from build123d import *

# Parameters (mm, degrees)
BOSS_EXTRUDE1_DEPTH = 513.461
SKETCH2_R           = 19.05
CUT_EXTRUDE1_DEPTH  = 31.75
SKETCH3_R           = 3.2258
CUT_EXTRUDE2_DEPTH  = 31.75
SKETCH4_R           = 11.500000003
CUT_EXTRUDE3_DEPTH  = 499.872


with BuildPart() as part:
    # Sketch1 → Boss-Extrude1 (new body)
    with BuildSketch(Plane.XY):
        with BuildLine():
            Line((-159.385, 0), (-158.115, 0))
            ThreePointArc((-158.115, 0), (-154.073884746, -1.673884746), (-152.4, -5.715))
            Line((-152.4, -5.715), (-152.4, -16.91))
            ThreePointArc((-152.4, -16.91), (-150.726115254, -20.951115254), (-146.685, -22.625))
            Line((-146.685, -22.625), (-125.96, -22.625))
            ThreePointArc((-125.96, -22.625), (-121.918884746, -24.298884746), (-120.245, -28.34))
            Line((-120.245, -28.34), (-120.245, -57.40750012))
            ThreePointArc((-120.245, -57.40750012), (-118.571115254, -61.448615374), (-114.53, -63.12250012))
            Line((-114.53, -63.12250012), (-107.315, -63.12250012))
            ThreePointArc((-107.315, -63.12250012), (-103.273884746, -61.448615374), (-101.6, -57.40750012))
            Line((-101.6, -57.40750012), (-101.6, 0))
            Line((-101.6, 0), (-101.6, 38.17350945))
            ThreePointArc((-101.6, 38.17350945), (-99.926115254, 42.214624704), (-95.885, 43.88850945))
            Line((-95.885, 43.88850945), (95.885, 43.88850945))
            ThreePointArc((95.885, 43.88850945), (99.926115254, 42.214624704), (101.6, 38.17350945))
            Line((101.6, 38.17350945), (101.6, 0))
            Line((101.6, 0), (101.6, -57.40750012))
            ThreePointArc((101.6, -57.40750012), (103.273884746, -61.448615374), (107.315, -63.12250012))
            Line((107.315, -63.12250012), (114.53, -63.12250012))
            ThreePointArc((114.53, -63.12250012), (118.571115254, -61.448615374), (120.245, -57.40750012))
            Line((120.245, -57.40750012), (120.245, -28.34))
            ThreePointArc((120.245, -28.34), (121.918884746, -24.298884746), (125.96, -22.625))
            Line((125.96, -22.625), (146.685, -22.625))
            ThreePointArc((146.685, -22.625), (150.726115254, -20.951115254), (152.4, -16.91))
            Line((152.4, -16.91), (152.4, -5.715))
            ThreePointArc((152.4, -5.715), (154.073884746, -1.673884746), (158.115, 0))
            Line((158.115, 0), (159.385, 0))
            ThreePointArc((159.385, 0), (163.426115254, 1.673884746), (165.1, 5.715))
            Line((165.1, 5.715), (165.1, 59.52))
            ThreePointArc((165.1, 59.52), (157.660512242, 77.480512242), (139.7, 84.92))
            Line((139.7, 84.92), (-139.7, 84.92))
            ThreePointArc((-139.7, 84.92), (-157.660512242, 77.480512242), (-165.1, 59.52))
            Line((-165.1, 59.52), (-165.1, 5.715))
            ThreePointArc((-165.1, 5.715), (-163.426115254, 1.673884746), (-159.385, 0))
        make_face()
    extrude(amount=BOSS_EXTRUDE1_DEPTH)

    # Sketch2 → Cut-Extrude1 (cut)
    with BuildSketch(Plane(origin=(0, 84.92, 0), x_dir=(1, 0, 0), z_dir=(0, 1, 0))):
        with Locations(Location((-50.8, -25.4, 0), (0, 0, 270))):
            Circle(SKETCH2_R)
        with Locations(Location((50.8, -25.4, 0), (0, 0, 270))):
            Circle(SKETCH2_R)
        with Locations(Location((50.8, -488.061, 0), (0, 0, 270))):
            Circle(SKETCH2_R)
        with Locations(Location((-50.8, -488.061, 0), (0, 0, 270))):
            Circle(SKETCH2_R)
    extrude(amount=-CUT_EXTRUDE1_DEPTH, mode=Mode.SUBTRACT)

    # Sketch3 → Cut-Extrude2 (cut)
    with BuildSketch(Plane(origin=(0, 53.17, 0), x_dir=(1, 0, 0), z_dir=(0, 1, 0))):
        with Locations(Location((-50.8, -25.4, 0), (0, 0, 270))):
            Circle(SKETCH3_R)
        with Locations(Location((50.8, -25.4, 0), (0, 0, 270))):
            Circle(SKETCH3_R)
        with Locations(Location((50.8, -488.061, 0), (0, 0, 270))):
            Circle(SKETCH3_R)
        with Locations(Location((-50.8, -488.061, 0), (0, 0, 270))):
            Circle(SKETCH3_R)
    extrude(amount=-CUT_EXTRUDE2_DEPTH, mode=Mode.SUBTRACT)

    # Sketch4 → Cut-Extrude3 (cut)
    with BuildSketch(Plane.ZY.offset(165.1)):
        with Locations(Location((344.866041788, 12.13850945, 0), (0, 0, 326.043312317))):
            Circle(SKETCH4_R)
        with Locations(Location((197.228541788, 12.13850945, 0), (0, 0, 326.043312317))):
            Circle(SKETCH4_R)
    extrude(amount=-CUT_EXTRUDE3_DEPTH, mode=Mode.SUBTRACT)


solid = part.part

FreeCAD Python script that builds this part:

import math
import FreeCAD as App
import Part
import Sketcher

V = App.Vector
Q = App.Units.Quantity

doc = App.newDocument("Part")
body = doc.addObject("PartDesign::Body", "Body")

# Sketch on XY plane
sketch1 = body.newObject("Sketcher::SketchObject", "Sketch")
sketch1.AttachmentSupport = (doc.getObject("XY_Plane"), [""])
sketch1.MapMode = "FlatFace"
sketch1.addGeometry([
    Part.LineSegment(V(-159.4, 0, 0), V(-158.1, 0, 0)),  # 0
    Part.ArcOfCircle(Part.Circle(V(-158.1, -5.7, 0), V(0, 0, 1), 5.7), math.radians(0), math.radians(90)),  # 1
    Part.LineSegment(V(-152.4, -5.7, 0), V(-152.4, -16.9, 0)),  # 2
    Part.ArcOfCircle(Part.Circle(V(-146.7, -16.9, 0), V(0, 0, 1), 5.7), math.radians(-180), math.radians(-90)),  # 3
    Part.LineSegment(V(-146.7, -22.6, 0), V(-126, -22.6, 0)),  # 4
    Part.ArcOfCircle(Part.Circle(V(-126, -28.3, 0), V(0, 0, 1), 5.7), math.radians(0), math.radians(90)),  # 5
    Part.LineSegment(V(-120.2, -28.3, 0), V(-120.2, -57.4, 0)),  # 6
    Part.ArcOfCircle(Part.Circle(V(-114.5, -57.4, 0), V(0, 0, 1), 5.7), math.radians(-180), math.radians(-90)),  # 7
    Part.LineSegment(V(-114.5, -63.1, 0), V(-107.3, -63.1, 0)),  # 8
    Part.ArcOfCircle(Part.Circle(V(-107.3, -57.4, 0), V(0, 0, 1), 5.7), math.radians(-90), math.radians(0)),  # 9
    Part.LineSegment(V(-101.6, -57.4, 0), V(-101.6, 38.2, 0)),  # 10
    Part.ArcOfCircle(Part.Circle(V(-95.9, 38.2, 0), V(0, 0, 1), 5.7), math.radians(90), math.radians(180)),  # 11
    Part.LineSegment(V(-95.9, 43.9, 0), V(95.9, 43.9, 0)),  # 12
    Part.ArcOfCircle(Part.Circle(V(95.9, 38.2, 0), V(0, 0, 1), 5.7), math.radians(0), math.radians(90)),  # 13
    Part.LineSegment(V(101.6, 38.2, 0), V(101.6, -57.4, 0)),  # 14
    Part.ArcOfCircle(Part.Circle(V(107.3, -57.4, 0), V(0, 0, 1), 5.7), math.radians(-180), math.radians(-90)),  # 15
    Part.LineSegment(V(107.3, -63.1, 0), V(114.5, -63.1, 0)),  # 16
    Part.ArcOfCircle(Part.Circle(V(114.5, -57.4, 0), V(0, 0, 1), 5.7), math.radians(-90), math.radians(0)),  # 17
    Part.LineSegment(V(120.2, -57.4, 0), V(120.2, -28.3, 0)),  # 18
    Part.ArcOfCircle(Part.Circle(V(126, -28.3, 0), V(0, 0, 1), 5.7), math.radians(90), math.radians(180)),  # 19
    Part.LineSegment(V(126, -22.6, 0), V(146.7, -22.6, 0)),  # 20
    Part.ArcOfCircle(Part.Circle(V(146.7, -16.9, 0), V(0, 0, 1), 5.7), math.radians(-90), math.radians(0)),  # 21
    Part.LineSegment(V(152.4, -16.9, 0), V(152.4, -5.7, 0)),  # 22
    Part.ArcOfCircle(Part.Circle(V(158.1, -5.7, 0), V(0, 0, 1), 5.7), math.radians(90), math.radians(180)),  # 23
    Part.LineSegment(V(158.1, 0, 0), V(159.4, 0, 0)),  # 24
    Part.ArcOfCircle(Part.Circle(V(159.4, 5.7, 0), V(0, 0, 1), 5.7), math.radians(-90), math.radians(0)),  # 25
    Part.LineSegment(V(165.1, 5.7, 0), V(165.1, 59.5, 0)),  # 26
    Part.ArcOfCircle(Part.Circle(V(139.7, 59.5, 0), V(0, 0, 1), 25.4), math.radians(0), math.radians(90)),  # 27
    Part.LineSegment(V(139.7, 84.9, 0), V(-139.7, 84.9, 0)),  # 28
    Part.ArcOfCircle(Part.Circle(V(-139.7, 59.5, 0), V(0, 0, 1), 25.4), math.radians(90), math.radians(180)),  # 29
    Part.LineSegment(V(-165.1, 59.5, 0), V(-165.1, 5.7, 0)),  # 30
    Part.ArcOfCircle(Part.Circle(V(-159.4, 5.7, 0), V(0, 0, 1), 5.7), math.radians(-180), math.radians(-90)),  # 31
], False)
sketch1.addConstraint([
    Sketcher.Constraint("Tangent", 0, 2, 1, 2),
    Sketcher.Constraint("Tangent", 1, 1, 2, 1),
    Sketcher.Constraint("Tangent", 2, 2, 3, 1),
    Sketcher.Constraint("Tangent", 3, 2, 4, 1),
    Sketcher.Constraint("Tangent", 4, 2, 5, 2),
    Sketcher.Constraint("Tangent", 5, 1, 6, 1),
    Sketcher.Constraint("Tangent", 6, 2, 7, 1),
    Sketcher.Constraint("Tangent", 7, 2, 8, 1),
    Sketcher.Constraint("Tangent", 8, 2, 9, 1),
    Sketcher.Constraint("Tangent", 9, 2, 10, 1),
    Sketcher.Constraint("Tangent", 10, 2, 11, 2),
    Sketcher.Constraint("Tangent", 11, 1, 12, 1),
    Sketcher.Constraint("Tangent", 12, 2, 13, 2),
    Sketcher.Constraint("Tangent", 13, 1, 14, 1),
    Sketcher.Constraint("Tangent", 14, 2, 15, 1),
    Sketcher.Constraint("Tangent", 15, 2, 16, 1),
    Sketcher.Constraint("Tangent", 16, 2, 17, 1),
    Sketcher.Constraint("Tangent", 17, 2, 18, 1),
    Sketcher.Constraint("Tangent", 18, 2, 19, 2),
    Sketcher.Constraint("Tangent", 19, 1, 20, 1),
    Sketcher.Constraint("Tangent", 20, 2, 21, 1),
    Sketcher.Constraint("Tangent", 21, 2, 22, 1),
    Sketcher.Constraint("Tangent", 22, 2, 23, 2),
    Sketcher.Constraint("Tangent", 23, 1, 24, 1),
    Sketcher.Constraint("Tangent", 24, 2, 25, 1),
    Sketcher.Constraint("Tangent", 25, 2, 26, 1),
    Sketcher.Constraint("Tangent", 26, 2, 27, 1),
    Sketcher.Constraint("Tangent", 27, 2, 28, 1),
    Sketcher.Constraint("Tangent", 28, 2, 29, 1),
    Sketcher.Constraint("Tangent", 29, 2, 30, 1),
    Sketcher.Constraint("Tangent", 30, 2, 31, 1),
    Sketcher.Constraint("Tangent", 31, 2, 0, 1),
    Sketcher.Constraint("Horizontal", 0),
    Sketcher.Constraint("Vertical", 2),
    Sketcher.Constraint("Horizontal", 4),
    Sketcher.Constraint("Vertical", 6),
    Sketcher.Constraint("Horizontal", 8),
    Sketcher.Constraint("Vertical", 10),
    Sketcher.Constraint("Horizontal", 12),
    Sketcher.Constraint("Vertical", 14),
    Sketcher.Constraint("Horizontal", 16),
    Sketcher.Constraint("Vertical", 18),
    Sketcher.Constraint("Horizontal", 20),
    Sketcher.Constraint("Vertical", 22),
    Sketcher.Constraint("Horizontal", 24),
    Sketcher.Constraint("Vertical", 26),
    Sketcher.Constraint("Horizontal", 28),
    Sketcher.Constraint("Vertical", 30),
    Sketcher.Constraint("Equal", 1, 3),
    Sketcher.Constraint("Equal", 3, 5),
    Sketcher.Constraint("Equal", 5, 7),
    Sketcher.Constraint("Equal", 7, 9),
    Sketcher.Constraint("Equal", 9, 11),
    Sketcher.Constraint("Equal", 11, 13),
    Sketcher.Constraint("Equal", 13, 15),
    Sketcher.Constraint("Equal", 15, 17),
    Sketcher.Constraint("Equal", 17, 19),
    Sketcher.Constraint("Equal", 19, 21),
    Sketcher.Constraint("Equal", 21, 23),
    Sketcher.Constraint("Equal", 23, 25),
    Sketcher.Constraint("Equal", 27, 29),
    Sketcher.Constraint("Equal", 25, 31),
    Sketcher.Constraint("Symmetric", 0, 2, 23, 1, -1, 1),
    Sketcher.Constraint("Symmetric", 9, 3, 15, 3, -2),
    Sketcher.Constraint("Symmetric", 5, 3, 19, 3, -2),
    Sketcher.Constraint("Symmetric", 25, 3, 31, 3, -2),
    Sketcher.Constraint("Radius", 27, Q("1 in")),
    Sketcher.Constraint("DistanceX", 28, 2, 28, 1, Q("11 in")),
    Sketcher.Constraint("DistanceX", 1, 1, -1, 1, Q("6 in")),
    Sketcher.Constraint("DistanceX", 9, 2, -1, 1, Q("4 in")),
    Sketcher.Constraint("Radius", 1, Q("0.225 in")),
    Sketcher.Constraint("DistanceX", 4, 1, 4, 2, Q("20.725 mm")),
    Sketcher.Constraint("DistanceY", 2, 2, 2, 1, Q("11.195 mm")),
    Sketcher.Constraint("DistanceY", 6, 2, 6, 1, Q("29.0675 mm")),
    Sketcher.Constraint("DistanceY", 26, 1, 26, 2, Q("53.805 mm")),
    Sketcher.Constraint("DistanceY", 10, 1, 10, 2, Q("95.58101 mm")),
])
pad1 = body.newObject("PartDesign::Pad", "Pad")
pad1.Profile = sketch1
pad1.Length = Q("20.215 in")

# Sketch on XZ plane
sketch2 = body.newObject("Sketcher::SketchObject", "Sketch001")
sketch2.AttachmentSupport = (doc.getObject("XZ_Plane"), [""])
sketch2.MapMode = "FlatFace"
sketch2.AttachmentOffset = App.Placement(V(0, 0, -84.92), App.Rotation())
sketch2.addGeometry([
    Part.Circle(V(-51, 25, 0), V(0, 0, 1), 19),
    Part.Circle(V(51, 25, 0), V(0, 0, 1), 19),
    Part.Circle(V(51, 488, 0), V(0, 0, 1), 19),
    Part.Circle(V(-51, 488, 0), V(0, 0, 1), 19),
], False)
sketch2.addConstraint([
    Sketcher.Constraint("Equal", 0, 1),
    Sketcher.Constraint("Equal", 1, 2),
    Sketcher.Constraint("Equal", 2, 3),
    Sketcher.Constraint("Symmetric", 0, 3, 1, 3, -2),
    Sketcher.Constraint("Symmetric", 2, 3, 3, 3, -2),
    Sketcher.Constraint("Vertical", 1, 3, 2, 3),
    Sketcher.Constraint("Diameter", 0, Q("1.5 in")),
    Sketcher.Constraint("DistanceX", 0, 3, -1, 1, Q("2 in")),
    Sketcher.Constraint("DistanceY", -1, 1, 0, 3, Q("1 in")),
    Sketcher.Constraint("DistanceY", -1, 1, 2, 3, Q("19.215 in")),
])
pocket1 = body.newObject("PartDesign::Pocket", "Pocket")
pocket1.Profile = sketch2
pocket1.Length = Q("1.25 in")
pocket1.Reversed = True

# Sketch on XZ plane
sketch3 = body.newObject("Sketcher::SketchObject", "Sketch002")
sketch3.AttachmentSupport = (doc.getObject("XZ_Plane"), [""])
sketch3.MapMode = "FlatFace"
sketch3.AttachmentOffset = App.Placement(V(0, 0, -53.17), App.Rotation())
sketch3.addGeometry([
    Part.Circle(V(-50.8, 25.4, 0), V(0, 0, 1), 3.2),
    Part.Circle(V(50.8, 25.4, 0), V(0, 0, 1), 3.2),
    Part.Circle(V(50.8, 488.1, 0), V(0, 0, 1), 3.2),
    Part.Circle(V(-50.8, 488.1, 0), V(0, 0, 1), 3.2),
], False)
sketch3.addConstraint([
    Sketcher.Constraint("Equal", 0, 1),
    Sketcher.Constraint("Equal", 1, 2),
    Sketcher.Constraint("Equal", 2, 3),
    Sketcher.Constraint("Symmetric", 0, 3, 1, 3, -2),
    Sketcher.Constraint("Symmetric", 2, 3, 3, 3, -2),
    Sketcher.Constraint("Vertical", 1, 3, 2, 3),
    Sketcher.Constraint("Diameter", 0, Q("0.254 in")),
    Sketcher.Constraint("DistanceX", 0, 3, -1, 1, Q("2 in")),
    Sketcher.Constraint("DistanceY", -1, 1, 0, 3, Q("1 in")),
    Sketcher.Constraint("DistanceY", -1, 1, 2, 3, Q("19.215 in")),
])
pocket2 = body.newObject("PartDesign::Pocket", "Pocket001")
pocket2.Profile = sketch3
pocket2.Length = Q("1.25 in")
pocket2.Reversed = True

# Sketch on YZ plane
sketch4 = body.newObject("Sketcher::SketchObject", "Sketch003")
sketch4.AttachmentSupport = (doc.getObject("YZ_Plane"), [""])
sketch4.MapMode = "FlatFace"
sketch4.AttachmentOffset = App.Placement(V(0, 0, -6.5 * 25.4), App.Rotation())
sketch4.addGeometry([
    Part.Circle(V(12, 345, 0), V(0, 0, 1), 12),
    Part.Circle(V(12, 197, 0), V(0, 0, 1), 12),
], False)
sketch4.addConstraint([
    Sketcher.Constraint("Equal", 0, 1),
    Sketcher.Constraint("Vertical", 0, 3, 1, 3),
    Sketcher.Constraint("Diameter", 0, Q("23 mm")),
    Sketcher.Constraint("DistanceY", 1, 3, 0, 3, Q("5.8125 in")),
    Sketcher.Constraint("DistanceX", -1, 1, 0, 3, Q("12.138509 mm")),
    Sketcher.Constraint("DistanceY", -1, 1, 0, 3, Q("344.866042 mm")),
])
pocket3 = body.newObject("PartDesign::Pocket", "Pocket002")
pocket3.Profile = sketch4
pocket3.Length = Q("19.68 in")
pocket3.Reversed = True

doc.recompute()
